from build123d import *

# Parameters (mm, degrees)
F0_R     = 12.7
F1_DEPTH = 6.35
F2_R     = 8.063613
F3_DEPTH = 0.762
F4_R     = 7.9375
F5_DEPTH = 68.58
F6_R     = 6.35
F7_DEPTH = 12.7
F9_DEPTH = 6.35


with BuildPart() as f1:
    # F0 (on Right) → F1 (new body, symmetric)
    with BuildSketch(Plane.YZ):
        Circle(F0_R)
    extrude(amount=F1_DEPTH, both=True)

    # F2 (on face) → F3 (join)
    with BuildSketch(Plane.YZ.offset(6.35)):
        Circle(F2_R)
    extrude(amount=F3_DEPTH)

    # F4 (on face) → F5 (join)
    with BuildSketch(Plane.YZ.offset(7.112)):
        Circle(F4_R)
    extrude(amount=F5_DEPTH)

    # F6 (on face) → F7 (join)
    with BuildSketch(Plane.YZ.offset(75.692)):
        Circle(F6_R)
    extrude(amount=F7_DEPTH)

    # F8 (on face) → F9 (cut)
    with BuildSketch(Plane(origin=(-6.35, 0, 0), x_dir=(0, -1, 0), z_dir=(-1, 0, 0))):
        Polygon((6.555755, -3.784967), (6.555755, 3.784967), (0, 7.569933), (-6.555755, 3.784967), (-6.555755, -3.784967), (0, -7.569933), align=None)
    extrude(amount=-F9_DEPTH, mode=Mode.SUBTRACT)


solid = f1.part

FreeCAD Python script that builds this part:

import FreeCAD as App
import Part
import Sketcher
from FreeCAD import Vector
Q = App.Units.Quantity

doc = App.newDocument("Part")
body = doc.addObject("PartDesign::Body", "Body")

sketch1 = doc.addObject("Sketcher::SketchObject", "Sketch")
body.addObject(sketch1)
sketch1.AttachmentSupport = (doc.YZ_Plane, [""])
sketch1.MapMode = "FlatFace"
sketch1.addGeometry(Part.Circle(Vector(0, 0, 0), Vector(0, 0, 1), 13), False)
sketch1.addConstraint(Sketcher.Constraint("Coincident", 0, 3, -1, 1))
sketch1.addConstraint(Sketcher.Constraint("Diameter", 0, Q("1 in")))
pad1 = doc.addObject("PartDesign::Pad", "Pad")
body.addObject(pad1)
pad1.Profile = sketch1
pad1.Length = Q("0.5 in")
pad1.Midplane = True

sketch2 = doc.addObject("Sketcher::SketchObject", "Sketch001")
body.addObject(sketch2)
sketch2.AttachmentSupport = (doc.YZ_Plane, [""])
sketch2.MapMode = "FlatFace"
sketch2.AttachmentOffset = App.Placement(Vector(0, 0, 0.25 * 25.4), App.Rotation())
sketch2.addGeometry(Part.Circle(Vector(0, 0, 0), Vector(0, 0, 1), 8), False)
sketch2.addConstraint(Sketcher.Constraint("Coincident", 0, 3, -1, 1))
sketch2.addConstraint(Sketcher.Constraint("Diameter", 0, 16.127226))
pad2 = doc.addObject("PartDesign::Pad", "Pad001")
body.addObject(pad2)
pad2.Profile = sketch2
pad2.Length = Q("0.03 in")

sketch3 = doc.addObject("Sketcher::SketchObject", "Sketch002")
body.addObject(sketch3)
sketch3.AttachmentSupport = (doc.YZ_Plane, [""])
sketch3.MapMode = "FlatFace"
sketch3.AttachmentOffset = App.Placement(Vector(0, 0, 0.28 * 25.4), App.Rotation())
sketch3.addGeometry(Part.Circle(Vector(0, 0, 0), Vector(0, 0, 1), 8), False)
sketch3.addConstraint(Sketcher.Constraint("Coincident", 0, 3, -1, 1))
sketch3.addConstraint(Sketcher.Constraint("Diameter", 0, Q("0.625 in")))
pad3 = doc.addObject("PartDesign::Pad", "Pad002")
body.addObject(pad3)
pad3.Profile = sketch3
pad3.Length = Q("2.7 in")

sketch4 = doc.addObject("Sketcher::SketchObject", "Sketch003")
body.addObject(sketch4)
sketch4.AttachmentSupport = (doc.YZ_Plane, [""])
sketch4.MapMode = "FlatFace"
sketch4.AttachmentOffset = App.Placement(Vector(0, 0, 2.98 * 25.4), App.Rotation())
sketch4.addGeometry(Part.Circle(Vector(0, 0, 0), Vector(0, 0, 1), 6), False)
sketch4.addConstraint(Sketcher.Constraint("Coincident", 0, 3, -1, 1))
sketch4.addConstraint(Sketcher.Constraint("Diameter", 0, Q("0.5 in")))
pad4 = doc.addObject("PartDesign::Pad", "Pad003")
body.addObject(pad4)
pad4.Profile = sketch4
pad4.Length = Q("0.5 in")

sketch5 = doc.addObject("Sketcher::SketchObject", "Sketch004")
body.addObject(sketch5)
sketch5.AttachmentSupport = (doc.YZ_Plane, [""])
sketch5.MapMode = "FlatFace"
sketch5.AttachmentOffset = App.Placement(Vector(0, 0, -0.25 * 25.4), App.Rotation())
sketch5.addGeometry(Part.LineSegment(Vector(-7, -4, 0), Vector(-7, 4, 0)), False)
sketch5.addGeometry(Part.LineSegment(Vector(-7, 4, 0), Vector(0, 8, 0)), False)
sketch5.addGeometry(Part.LineSegment(Vector(0, 8, 0), Vector(7, 4, 0)), False)
sketch5.addGeometry(Part.LineSegment(Vector(7, 4, 0), Vector(7, -4, 0)), False)
sketch5.addGeometry(Part.LineSegment(Vector(7, -4, 0), Vector(0, -8, 0)), False)
sketch5.addGeometry(Part.LineSegment(Vector(0, -8, 0), Vector(-7, -4, 0)), False)
sketch5.addConstraint(Sketcher.Constraint("Coincident", 0, 2, 1, 1))
sketch5.addConstraint(Sketcher.Constraint("Coincident", 1, 2, 2, 1))
sketch5.addConstraint(Sketcher.Constraint("Coincident", 2, 2, 3, 1))
sketch5.addConstraint(Sketcher.Constraint("Coincident", 3, 2, 4, 1))
sketch5.addConstraint(Sketcher.Constraint("Coincident", 4, 2, 5, 1))
sketch5.addConstraint(Sketcher.Constraint("Coincident", 5, 2, 0, 1))
sketch5.addConstraint(Sketcher.Constraint("Vertical", 0))
sketch5.addConstraint(Sketcher.Constraint("Vertical", 3))
sketch5.addConstraint(Sketcher.Constraint("Symmetric", 0, 2, 3, 2, -1, 1))
sketch5.addConstraint(Sketcher.Constraint("Symmetric", 1, 2, 4, 2, -1, 1))
sketch5.addConstraint(Sketcher.Constraint("PointOnObject", 1, 2, -2))
sketch5.addConstraint(Sketcher.Constraint("Parallel", 2, 5))
sketch5.addConstraint(Sketcher.Constraint("Horizontal", 0, 2, 2, 2))
sketch5.addConstraint(Sketcher.Constraint("Angle", 1, Q("29.999994 deg")))
sketch5.addConstraint(Sketcher.Constraint("DistanceY", 3, 2, 1, 2, 11.3549))
sketch5.addConstraint(Sketcher.Constraint("DistanceY", 0, 1, 0, 2, 7.569934))
pocket1 = doc.addObject("PartDesign::Pocket", "Pocket")
body.addObject(pocket1)
pocket1.Profile = sketch5
pocket1.Length = Q("0.25 in")
pocket1.Reversed = True

doc.recompute()
